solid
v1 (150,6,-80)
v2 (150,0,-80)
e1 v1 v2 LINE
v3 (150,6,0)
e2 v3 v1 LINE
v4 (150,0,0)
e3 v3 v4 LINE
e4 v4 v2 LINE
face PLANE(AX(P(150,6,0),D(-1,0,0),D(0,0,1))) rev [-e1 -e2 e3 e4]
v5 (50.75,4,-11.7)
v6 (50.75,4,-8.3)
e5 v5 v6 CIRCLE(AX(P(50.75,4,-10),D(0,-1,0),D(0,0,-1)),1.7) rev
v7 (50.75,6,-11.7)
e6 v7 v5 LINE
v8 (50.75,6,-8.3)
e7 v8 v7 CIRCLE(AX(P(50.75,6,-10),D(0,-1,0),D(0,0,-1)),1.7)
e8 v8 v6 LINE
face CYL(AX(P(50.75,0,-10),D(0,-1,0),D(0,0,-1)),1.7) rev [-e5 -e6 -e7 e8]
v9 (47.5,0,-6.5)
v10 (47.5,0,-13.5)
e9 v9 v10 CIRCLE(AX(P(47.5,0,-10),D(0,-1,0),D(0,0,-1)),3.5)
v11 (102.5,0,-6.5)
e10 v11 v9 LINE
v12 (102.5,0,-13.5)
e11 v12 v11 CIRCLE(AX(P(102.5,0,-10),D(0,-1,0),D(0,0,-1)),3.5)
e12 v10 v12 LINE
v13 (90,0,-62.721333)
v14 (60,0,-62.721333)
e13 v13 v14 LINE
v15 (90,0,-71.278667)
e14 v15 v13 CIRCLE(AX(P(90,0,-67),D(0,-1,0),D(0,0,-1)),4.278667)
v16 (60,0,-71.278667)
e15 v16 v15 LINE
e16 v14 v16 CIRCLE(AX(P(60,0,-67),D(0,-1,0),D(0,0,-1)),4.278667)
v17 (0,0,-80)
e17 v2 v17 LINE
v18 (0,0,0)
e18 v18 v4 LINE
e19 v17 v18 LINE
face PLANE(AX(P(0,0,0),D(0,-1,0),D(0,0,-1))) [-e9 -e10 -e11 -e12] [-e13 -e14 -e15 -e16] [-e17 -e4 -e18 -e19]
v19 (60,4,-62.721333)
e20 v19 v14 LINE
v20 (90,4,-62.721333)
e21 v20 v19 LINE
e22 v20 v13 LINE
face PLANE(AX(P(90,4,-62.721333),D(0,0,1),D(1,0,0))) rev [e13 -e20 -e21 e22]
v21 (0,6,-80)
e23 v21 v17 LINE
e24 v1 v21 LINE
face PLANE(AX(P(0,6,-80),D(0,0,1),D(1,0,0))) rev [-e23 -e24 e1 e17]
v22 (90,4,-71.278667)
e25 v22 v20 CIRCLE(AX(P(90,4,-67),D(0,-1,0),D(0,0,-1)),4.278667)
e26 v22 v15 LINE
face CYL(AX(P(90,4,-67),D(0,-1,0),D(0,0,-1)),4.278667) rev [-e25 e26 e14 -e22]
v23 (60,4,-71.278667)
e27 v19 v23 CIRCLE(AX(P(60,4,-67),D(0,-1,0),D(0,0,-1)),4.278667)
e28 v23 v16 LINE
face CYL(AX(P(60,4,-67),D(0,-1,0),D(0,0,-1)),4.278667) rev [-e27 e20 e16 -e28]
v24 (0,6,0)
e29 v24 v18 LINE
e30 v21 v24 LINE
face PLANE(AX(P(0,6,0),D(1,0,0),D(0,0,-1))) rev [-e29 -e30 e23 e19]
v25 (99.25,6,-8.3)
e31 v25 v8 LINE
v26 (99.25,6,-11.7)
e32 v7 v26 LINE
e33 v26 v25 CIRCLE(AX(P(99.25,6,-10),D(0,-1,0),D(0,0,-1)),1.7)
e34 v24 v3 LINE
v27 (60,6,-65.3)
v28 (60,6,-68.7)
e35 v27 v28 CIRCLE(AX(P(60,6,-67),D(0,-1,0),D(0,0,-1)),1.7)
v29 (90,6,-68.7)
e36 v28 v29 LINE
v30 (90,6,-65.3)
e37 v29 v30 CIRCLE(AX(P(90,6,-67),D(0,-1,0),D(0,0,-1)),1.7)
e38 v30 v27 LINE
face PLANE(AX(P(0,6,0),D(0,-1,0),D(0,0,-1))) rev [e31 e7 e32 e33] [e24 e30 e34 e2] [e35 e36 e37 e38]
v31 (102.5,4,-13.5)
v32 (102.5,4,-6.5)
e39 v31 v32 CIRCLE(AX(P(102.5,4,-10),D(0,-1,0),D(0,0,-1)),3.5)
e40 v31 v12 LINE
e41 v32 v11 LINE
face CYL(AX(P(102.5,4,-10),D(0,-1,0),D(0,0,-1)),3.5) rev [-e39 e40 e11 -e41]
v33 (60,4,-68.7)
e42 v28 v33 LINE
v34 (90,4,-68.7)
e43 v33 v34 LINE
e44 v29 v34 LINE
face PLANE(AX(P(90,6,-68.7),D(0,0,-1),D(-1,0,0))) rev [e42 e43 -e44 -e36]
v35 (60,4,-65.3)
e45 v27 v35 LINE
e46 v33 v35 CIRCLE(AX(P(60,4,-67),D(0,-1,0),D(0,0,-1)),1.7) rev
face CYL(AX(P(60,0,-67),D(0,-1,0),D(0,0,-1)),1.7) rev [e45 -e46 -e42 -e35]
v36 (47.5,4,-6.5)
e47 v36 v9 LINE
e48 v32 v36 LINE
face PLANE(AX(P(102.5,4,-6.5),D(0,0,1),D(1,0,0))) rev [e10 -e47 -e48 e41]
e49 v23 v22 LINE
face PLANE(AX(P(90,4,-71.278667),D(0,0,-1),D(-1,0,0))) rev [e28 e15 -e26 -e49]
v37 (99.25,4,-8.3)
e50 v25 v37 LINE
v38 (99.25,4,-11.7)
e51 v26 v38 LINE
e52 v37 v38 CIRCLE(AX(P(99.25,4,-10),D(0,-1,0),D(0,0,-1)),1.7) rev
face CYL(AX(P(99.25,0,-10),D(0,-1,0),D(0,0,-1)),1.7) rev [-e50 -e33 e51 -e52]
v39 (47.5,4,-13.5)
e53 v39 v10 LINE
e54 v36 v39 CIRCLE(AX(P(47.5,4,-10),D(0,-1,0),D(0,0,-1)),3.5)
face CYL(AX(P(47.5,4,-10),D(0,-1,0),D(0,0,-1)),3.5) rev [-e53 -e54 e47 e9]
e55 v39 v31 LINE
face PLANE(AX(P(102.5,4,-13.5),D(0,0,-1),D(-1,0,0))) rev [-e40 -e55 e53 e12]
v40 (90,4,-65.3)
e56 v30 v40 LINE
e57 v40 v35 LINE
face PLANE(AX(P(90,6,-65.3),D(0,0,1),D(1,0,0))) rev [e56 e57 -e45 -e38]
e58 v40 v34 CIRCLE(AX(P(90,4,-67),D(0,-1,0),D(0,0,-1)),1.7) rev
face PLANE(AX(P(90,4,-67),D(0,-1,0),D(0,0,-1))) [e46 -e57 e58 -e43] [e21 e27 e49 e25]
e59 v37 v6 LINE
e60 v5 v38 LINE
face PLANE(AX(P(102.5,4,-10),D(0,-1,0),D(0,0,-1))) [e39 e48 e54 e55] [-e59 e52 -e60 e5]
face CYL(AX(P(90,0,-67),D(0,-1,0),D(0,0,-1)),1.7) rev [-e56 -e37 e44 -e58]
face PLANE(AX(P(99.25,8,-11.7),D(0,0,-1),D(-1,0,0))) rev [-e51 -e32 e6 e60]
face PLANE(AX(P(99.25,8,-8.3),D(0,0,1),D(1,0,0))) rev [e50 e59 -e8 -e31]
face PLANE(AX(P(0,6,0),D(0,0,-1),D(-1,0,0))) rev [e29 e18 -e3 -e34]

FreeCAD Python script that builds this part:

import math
import FreeCAD as App
import Part
import Sketcher
from FreeCAD import Vector
Q = App.Units.Quantity

doc = App.newDocument("Part")
body = doc.addObject("PartDesign::Body", "Body")

sketch1 = body.newObject("Sketcher::SketchObject", "Sketch")
sketch1.AttachmentSupport = (doc.getObject("XZ_Plane"), [""])
sketch1.MapMode = "FlatFace"
sketch1.addGeometry([
    Part.LineSegment(Vector(0, -80, 0), Vector(0, 0, 0)),
    Part.LineSegment(Vector(0, 0, 0), Vector(150, 0, 0)),
    Part.LineSegment(Vector(150, 0, 0), Vector(150, -80, 0)),
    Part.LineSegment(Vector(150, -80, 0), Vector(0, -80, 0)),
], False)
sketch1.addConstraint([
    Sketcher.Constraint("Coincident", 0, 2, 1, 1),
    Sketcher.Constraint("Coincident", 1, 2, 2, 1),
    Sketcher.Constraint("Coincident", 2, 2, 3, 1),
    Sketcher.Constraint("Coincident", 3, 2, 0, 1),
    Sketcher.Constraint("Vertical", 0),
    Sketcher.Constraint("Horizontal", 1),
    Sketcher.Constraint("Vertical", 2),
    Sketcher.Constraint("Horizontal", 3),
    Sketcher.Constraint("Coincident", 0, 2, -1, 1),
    Sketcher.Constraint("DistanceX", 1, 1, 1, 2, Q("150 mm")),
    Sketcher.Constraint("DistanceY", 0, 1, 0, 2, Q("80 mm")),
])
pad1 = body.newObject("PartDesign::Pad", "Pad")
pad1.Profile = sketch1
pad1.Length = 6
pad1.Reversed = True

sketch2 = body.newObject("Sketcher::SketchObject", "Sketch001")
sketch2.AttachmentSupport = (doc.getObject("XZ_Plane"), [""])
sketch2.MapMode = "FlatFace"
sketch2.addGeometry([
    Part.Circle(Vector(90, -67, 0), Vector(0, 0, 1), 1.7),
    Part.Circle(Vector(60, -67, 0), Vector(0, 0, 1), 1.7),
    Part.Circle(Vector(50.75, -10, 0), Vector(0, 0, 1), 1.7),
    Part.Circle(Vector(99.25, -10, 0), Vector(0, 0, 1), 1.7),
], False)
sketch2.addConstraint([
    Sketcher.Constraint("Equal", 0, 1),
    Sketcher.Constraint("Equal", 1, 2),
    Sketcher.Constraint("Equal", 2, 3),
    Sketcher.Constraint("Horizontal", 0, 3, 1, 3),
    Sketcher.Constraint("Horizontal", 2, 3, 3, 3),
    Sketcher.Constraint("Diameter", 0, Q("3.4 mm")),
    Sketcher.Constraint("DistanceX", -1, 1, 0, 3, Q("90 mm")),
    Sketcher.Constraint("DistanceY", 0, 3, -1, 1, Q("67 mm")),
    Sketcher.Constraint("DistanceX", -1, 1, 1, 3, Q("60 mm")),
    Sketcher.Constraint("DistanceY", 2, 3, -1, 1, Q("10 mm")),
    Sketcher.Constraint("DistanceX", 2, 3, 3, 3, Q("48.5 mm")),
    Sketcher.Constraint("DistanceX", -1, 1, 2, 3, Q("50.75 mm")),
])
doc.recompute()
hole = body.newObject("PartDesign::Hole", "Hole")
hole.Profile = sketch2
hole.ThreadType = "None"
hole.Diameter = 3.4
hole.DepthType = "Dimension"
hole.Depth = 15
hole.DrillPoint = "Angled"
hole.DrillPointAngle = 118
hole.HoleCutType = "Counterbore"
hole.HoleCutDiameter = 6.5
hole.HoleCutDepth = 3.4

sketch3 = body.newObject("Sketcher::SketchObject", "Sketch002")
sketch3.AttachmentSupport = (doc.getObject("XZ_Plane"), [""])
sketch3.MapMode = "FlatFace"
sketch3.addGeometry([
    Part.LineSegment(Vector(60, -71.278667, 0), Vector(90, -71.278667, 0)),
    Part.ArcOfCircle(Part.Circle(Vector(90, -67, 0), Vector(0, 0, 1), 4.278667), math.radians(-90), math.radians(90)),
    Part.LineSegment(Vector(90, -62.721333, 0), Vector(60, -62.721333, 0)),
    Part.ArcOfCircle(Part.Circle(Vector(60, -67, 0), Vector(0, 0, 1), 4.278667), math.radians(90), math.radians(270)),
], False)
sketch3.addConstraint([
    Sketcher.Constraint("Tangent", 0, 2, 1, 1),
    Sketcher.Constraint("Tangent", 1, 2, 2, 1),
    Sketcher.Constraint("Tangent", 2, 2, 3, 1),
    Sketcher.Constraint("Tangent", 3, 2, 0, 1),
    Sketcher.Constraint("Horizontal", 0),
    Sketcher.Constraint("Horizontal", 2),
    Sketcher.Constraint("DistanceX", 0, 1, 0, 2, Q("30 mm")),
    Sketcher.Constraint("DistanceX", -1, 1, 1, 3, Q("90 mm")),
    Sketcher.Constraint("DistanceY", 1, 3, -1, 1, Q("67 mm")),
    Sketcher.Constraint("Radius", 1, Q("4.278667 mm")),
])
pocket1 = body.newObject("PartDesign::Pocket", "Pocket")
pocket1.Profile = sketch3
pocket1.Length = 4

sketch4 = body.newObject("Sketcher::SketchObject", "Sketch003")
sketch4.AttachmentSupport = (doc.getObject("XZ_Plane"), [""])
sketch4.MapMode = "FlatFace"
sketch4.addGeometry([
    Part.LineSegment(Vector(60, -68.7, 0), Vector(90, -68.7, 0)),
    Part.ArcOfCircle(Part.Circle(Vector(90, -67, 0), Vector(0, 0, 1), 1.7), math.radians(-90), math.radians(90)),
    Part.LineSegment(Vector(90, -65.3, 0), Vector(60, -65.3, 0)),
    Part.ArcOfCircle(Part.Circle(Vector(60, -67, 0), Vector(0, 0, 1), 1.7), math.radians(90), math.radians(270)),
], False)
sketch4.addConstraint([
    Sketcher.Constraint("Tangent", 0, 2, 1, 1),
    Sketcher.Constraint("Tangent", 1, 2, 2, 1),
    Sketcher.Constraint("Tangent", 2, 2, 3, 1),
    Sketcher.Constraint("Tangent", 3, 2, 0, 1),
    Sketcher.Constraint("Horizontal", 0),
    Sketcher.Constraint("Horizontal", 2),
    Sketcher.Constraint("Radius", 1, Q("1.7 mm")),
    Sketcher.Constraint("DistanceX", 0, 1, 0, 2, Q("30 mm")),
    Sketcher.Constraint("DistanceX", -1, 1, 1, 3, Q("90 mm")),
    Sketcher.Constraint("DistanceY", 1, 3, -1, 1, Q("67 mm")),
])
pocket2 = body.newObject("PartDesign::Pocket", "Pocket001")
pocket2.Profile = sketch4
pocket2.Type = "ThroughAll"

sketch5 = body.newObject("Sketcher::SketchObject", "Sketch004")
sketch5.AttachmentSupport = (doc.getObject("XZ_Plane"), [""])
sketch5.MapMode = "FlatFace"
sketch5.addGeometry([
    Part.LineSegment(Vector(47.5, -13.5, 0), Vector(102.5, -13.5, 0)),
    Part.ArcOfCircle(Part.Circle(Vector(102.5, -10, 0), Vector(0, 0, 1), 3.5), math.radians(-90), math.radians(90)),
    Part.LineSegment(Vector(102.5, -6.5, 0), Vector(47.5, -6.5, 0)),
    Part.ArcOfCircle(Part.Circle(Vector(47.5, -10, 0), Vector(0, 0, 1), 3.5), math.radians(90), math.radians(270)),
], False)
sketch5.addConstraint([
    Sketcher.Constraint("Tangent", 0, 2, 1, 1),
    Sketcher.Constraint("Tangent", 1, 2, 2, 1),
    Sketcher.Constraint("Tangent", 2, 2, 3, 1),
    Sketcher.Constraint("Tangent", 3, 2, 0, 1),
    Sketcher.Constraint("Horizontal", 0),
    Sketcher.Constraint("Horizontal", 2),
    Sketcher.Constraint("Radius", 1, Q("3.5 mm")),
    Sketcher.Constraint("DistanceX", 0, 1, 0, 2, Q("55 mm")),
    Sketcher.Constraint("DistanceY", 1, 3, -1, 1, Q("10 mm")),
    Sketcher.Constraint("DistanceX", -1, 1, 1, 3, Q("102.5 mm")),
])
pocket3 = body.newObject("PartDesign::Pocket", "Pocket002")
pocket3.Profile = sketch5
pocket3.Length = 4

sketch6 = body.newObject("Sketcher::SketchObject", "Sketch005")
sketch6.AttachmentSupport = (doc.getObject("XZ_Plane"), [""])
sketch6.MapMode = "FlatFace"
sketch6.AttachmentOffset = App.Placement(Vector(0, 0, -8), App.Rotation())
sketch6.addGeometry([
    Part.LineSegment(Vector(50.75, -11.7, 0), Vector(99.25, -11.7, 0)),
    Part.ArcOfCircle(Part.Circle(Vector(99.25, -10, 0), Vector(0, 0, 1), 1.7), math.radians(-90), math.radians(90)),
    Part.LineSegment(Vector(99.25, -8.3, 0), Vector(50.75, -8.3, 0)),
    Part.ArcOfCircle(Part.Circle(Vector(50.75, -10, 0), Vector(0, 0, 1), 1.7), math.radians(90), math.radians(270)),
], False)
sketch6.addConstraint([
    Sketcher.Constraint("Tangent", 0, 2, 1, 1),
    Sketcher.Constraint("Tangent", 1, 2, 2, 1),
    Sketcher.Constraint("Tangent", 2, 2, 3, 1),
    Sketcher.Constraint("Tangent", 3, 2, 0, 1),
    Sketcher.Constraint("Horizontal", 0),
    Sketcher.Constraint("Horizontal", 2),
    Sketcher.Constraint("Radius", 1, Q("1.7 mm")),
    Sketcher.Constraint("DistanceX", 0, 1, 0, 2, Q("48.5 mm")),
    Sketcher.Constraint("DistanceY", 1, 3, -1, 1, Q("10 mm")),
    Sketcher.Constraint("DistanceX", -1, 1, 1, 3, Q("99.25 mm")),
])
pocket4 = body.newObject("PartDesign::Pocket", "Pocket003")
pocket4.Profile = sketch6
pocket4.Length = 4
pocket4.Reversed = True

doc.recompute()
